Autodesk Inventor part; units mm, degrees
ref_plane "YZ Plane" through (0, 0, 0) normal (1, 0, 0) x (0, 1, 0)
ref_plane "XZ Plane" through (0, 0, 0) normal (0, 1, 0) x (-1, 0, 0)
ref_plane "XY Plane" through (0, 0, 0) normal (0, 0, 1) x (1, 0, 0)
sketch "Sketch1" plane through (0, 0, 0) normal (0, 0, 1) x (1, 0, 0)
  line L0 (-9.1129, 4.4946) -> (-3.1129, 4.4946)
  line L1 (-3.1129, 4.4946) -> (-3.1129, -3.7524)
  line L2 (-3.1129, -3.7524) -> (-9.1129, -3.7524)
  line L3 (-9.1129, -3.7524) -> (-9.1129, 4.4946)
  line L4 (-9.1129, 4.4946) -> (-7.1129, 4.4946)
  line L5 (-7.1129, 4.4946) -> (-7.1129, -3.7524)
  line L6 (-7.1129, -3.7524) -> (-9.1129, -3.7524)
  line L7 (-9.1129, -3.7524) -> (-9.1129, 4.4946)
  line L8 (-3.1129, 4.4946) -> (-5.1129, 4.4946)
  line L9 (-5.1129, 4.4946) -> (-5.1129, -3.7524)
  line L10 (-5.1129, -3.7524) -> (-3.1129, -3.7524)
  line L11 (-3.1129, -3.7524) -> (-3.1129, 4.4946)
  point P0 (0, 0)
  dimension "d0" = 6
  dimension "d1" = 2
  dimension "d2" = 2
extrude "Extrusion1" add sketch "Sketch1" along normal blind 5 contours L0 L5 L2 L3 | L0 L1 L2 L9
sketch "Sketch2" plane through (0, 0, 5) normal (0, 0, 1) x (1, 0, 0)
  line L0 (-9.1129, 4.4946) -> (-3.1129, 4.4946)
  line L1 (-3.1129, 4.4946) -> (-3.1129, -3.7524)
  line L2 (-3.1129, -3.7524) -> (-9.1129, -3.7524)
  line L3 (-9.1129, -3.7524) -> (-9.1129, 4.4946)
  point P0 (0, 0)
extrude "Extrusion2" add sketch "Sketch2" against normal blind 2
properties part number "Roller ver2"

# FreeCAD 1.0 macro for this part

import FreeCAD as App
import Part
import Sketcher
from FreeCAD import Vector


def add_polygon(sketch, points):
    """Adds a closed chain of lines whose ends are joined by coincident constraints."""
    first, n = sketch.GeometryCount, len(points)
    for a, b in zip(points, points[1:] + points[:1]):
        sketch.addGeometry(Part.LineSegment(App.Vector(*a, 0), App.Vector(*b, 0)), False)
    for i in range(n):
        sketch.addConstraint(Sketcher.Constraint("Coincident", first + i, 2, first + (i + 1) % n, 1))

doc = App.newDocument("Part")
body = doc.addObject("PartDesign::Body", "Body")
body.AllowCompound = True

sketch1 = body.newObject("Sketcher::SketchObject", "Sketch")
sketch1.AttachmentSupport = (doc.getObject("XY_Plane"), [""])
sketch1.MapMode = "FlatFace"
add_polygon(sketch1, [(-7.1, 4.5), (-9.1, 4.5), (-9.1, -3.8), (-7.1, -3.8)])
add_polygon(sketch1, [(-3.1, 4.5), (-5.1, 4.5), (-5.1, -3.8), (-3.1, -3.8)])
sketch1.addConstraint([
    Sketcher.Constraint("Horizontal", 0),
    Sketcher.Constraint("Vertical", 1),
    Sketcher.Constraint("Horizontal", 2),
    Sketcher.Constraint("Vertical", 3),
    Sketcher.Constraint("Horizontal", 4),
    Sketcher.Constraint("Vertical", 5),
    Sketcher.Constraint("Horizontal", 6),
    Sketcher.Constraint("Vertical", 7),
    Sketcher.Constraint("Horizontal", 3, 2, 4, 2),
    Sketcher.Constraint("Horizontal", 2, 2, 5, 2),
    Sketcher.Constraint("Equal", 2, 4),
    Sketcher.Constraint("DistanceX", 0, 2, 0, 1, 2.0),
    Sketcher.Constraint("DistanceX", 3, 2, 4, 2, 2.0),
    Sketcher.Constraint("DistanceY", 1, 2, 1, 1, 8.247),
    Sketcher.Constraint("DistanceX", 0, 2, -1, 1, 9.113),
    Sketcher.Constraint("DistanceY", -1, 1, 0, 2, 4.4946),
])
pad1 = body.newObject("PartDesign::Pad", "Pad")
pad1.Profile = sketch1
pad1.Length = 5

sketch2 = body.newObject("Sketcher::SketchObject", "Sketch001")
sketch2.AttachmentSupport = (doc.getObject("XY_Plane"), [""])
sketch2.MapMode = "FlatFace"
sketch2.AttachmentOffset = App.Placement(Vector(0, 0, 5), App.Rotation())
add_polygon(sketch2, [(-3, 4), (-9, 4), (-9, -4), (-3, -4)])
sketch2.addConstraint([
    Sketcher.Constraint("Horizontal", 0),
    Sketcher.Constraint("Vertical", 1),
    Sketcher.Constraint("Horizontal", 2),
    Sketcher.Constraint("Vertical", 3),
    Sketcher.Constraint("DistanceX", 0, 2, 0, 1, 6.0),
    Sketcher.Constraint("DistanceY", 1, 2, 1, 1, 8.247),
    Sketcher.Constraint("DistanceX", 0, 2, -1, 1, 9.113),
    Sketcher.Constraint("DistanceY", -1, 1, 0, 2, 4.4946),
])
pad2 = body.newObject("PartDesign::Pad", "Pad001")
pad2.Profile = sketch2
pad2.Length = 2
pad2.Reversed = True

doc.recompute()
